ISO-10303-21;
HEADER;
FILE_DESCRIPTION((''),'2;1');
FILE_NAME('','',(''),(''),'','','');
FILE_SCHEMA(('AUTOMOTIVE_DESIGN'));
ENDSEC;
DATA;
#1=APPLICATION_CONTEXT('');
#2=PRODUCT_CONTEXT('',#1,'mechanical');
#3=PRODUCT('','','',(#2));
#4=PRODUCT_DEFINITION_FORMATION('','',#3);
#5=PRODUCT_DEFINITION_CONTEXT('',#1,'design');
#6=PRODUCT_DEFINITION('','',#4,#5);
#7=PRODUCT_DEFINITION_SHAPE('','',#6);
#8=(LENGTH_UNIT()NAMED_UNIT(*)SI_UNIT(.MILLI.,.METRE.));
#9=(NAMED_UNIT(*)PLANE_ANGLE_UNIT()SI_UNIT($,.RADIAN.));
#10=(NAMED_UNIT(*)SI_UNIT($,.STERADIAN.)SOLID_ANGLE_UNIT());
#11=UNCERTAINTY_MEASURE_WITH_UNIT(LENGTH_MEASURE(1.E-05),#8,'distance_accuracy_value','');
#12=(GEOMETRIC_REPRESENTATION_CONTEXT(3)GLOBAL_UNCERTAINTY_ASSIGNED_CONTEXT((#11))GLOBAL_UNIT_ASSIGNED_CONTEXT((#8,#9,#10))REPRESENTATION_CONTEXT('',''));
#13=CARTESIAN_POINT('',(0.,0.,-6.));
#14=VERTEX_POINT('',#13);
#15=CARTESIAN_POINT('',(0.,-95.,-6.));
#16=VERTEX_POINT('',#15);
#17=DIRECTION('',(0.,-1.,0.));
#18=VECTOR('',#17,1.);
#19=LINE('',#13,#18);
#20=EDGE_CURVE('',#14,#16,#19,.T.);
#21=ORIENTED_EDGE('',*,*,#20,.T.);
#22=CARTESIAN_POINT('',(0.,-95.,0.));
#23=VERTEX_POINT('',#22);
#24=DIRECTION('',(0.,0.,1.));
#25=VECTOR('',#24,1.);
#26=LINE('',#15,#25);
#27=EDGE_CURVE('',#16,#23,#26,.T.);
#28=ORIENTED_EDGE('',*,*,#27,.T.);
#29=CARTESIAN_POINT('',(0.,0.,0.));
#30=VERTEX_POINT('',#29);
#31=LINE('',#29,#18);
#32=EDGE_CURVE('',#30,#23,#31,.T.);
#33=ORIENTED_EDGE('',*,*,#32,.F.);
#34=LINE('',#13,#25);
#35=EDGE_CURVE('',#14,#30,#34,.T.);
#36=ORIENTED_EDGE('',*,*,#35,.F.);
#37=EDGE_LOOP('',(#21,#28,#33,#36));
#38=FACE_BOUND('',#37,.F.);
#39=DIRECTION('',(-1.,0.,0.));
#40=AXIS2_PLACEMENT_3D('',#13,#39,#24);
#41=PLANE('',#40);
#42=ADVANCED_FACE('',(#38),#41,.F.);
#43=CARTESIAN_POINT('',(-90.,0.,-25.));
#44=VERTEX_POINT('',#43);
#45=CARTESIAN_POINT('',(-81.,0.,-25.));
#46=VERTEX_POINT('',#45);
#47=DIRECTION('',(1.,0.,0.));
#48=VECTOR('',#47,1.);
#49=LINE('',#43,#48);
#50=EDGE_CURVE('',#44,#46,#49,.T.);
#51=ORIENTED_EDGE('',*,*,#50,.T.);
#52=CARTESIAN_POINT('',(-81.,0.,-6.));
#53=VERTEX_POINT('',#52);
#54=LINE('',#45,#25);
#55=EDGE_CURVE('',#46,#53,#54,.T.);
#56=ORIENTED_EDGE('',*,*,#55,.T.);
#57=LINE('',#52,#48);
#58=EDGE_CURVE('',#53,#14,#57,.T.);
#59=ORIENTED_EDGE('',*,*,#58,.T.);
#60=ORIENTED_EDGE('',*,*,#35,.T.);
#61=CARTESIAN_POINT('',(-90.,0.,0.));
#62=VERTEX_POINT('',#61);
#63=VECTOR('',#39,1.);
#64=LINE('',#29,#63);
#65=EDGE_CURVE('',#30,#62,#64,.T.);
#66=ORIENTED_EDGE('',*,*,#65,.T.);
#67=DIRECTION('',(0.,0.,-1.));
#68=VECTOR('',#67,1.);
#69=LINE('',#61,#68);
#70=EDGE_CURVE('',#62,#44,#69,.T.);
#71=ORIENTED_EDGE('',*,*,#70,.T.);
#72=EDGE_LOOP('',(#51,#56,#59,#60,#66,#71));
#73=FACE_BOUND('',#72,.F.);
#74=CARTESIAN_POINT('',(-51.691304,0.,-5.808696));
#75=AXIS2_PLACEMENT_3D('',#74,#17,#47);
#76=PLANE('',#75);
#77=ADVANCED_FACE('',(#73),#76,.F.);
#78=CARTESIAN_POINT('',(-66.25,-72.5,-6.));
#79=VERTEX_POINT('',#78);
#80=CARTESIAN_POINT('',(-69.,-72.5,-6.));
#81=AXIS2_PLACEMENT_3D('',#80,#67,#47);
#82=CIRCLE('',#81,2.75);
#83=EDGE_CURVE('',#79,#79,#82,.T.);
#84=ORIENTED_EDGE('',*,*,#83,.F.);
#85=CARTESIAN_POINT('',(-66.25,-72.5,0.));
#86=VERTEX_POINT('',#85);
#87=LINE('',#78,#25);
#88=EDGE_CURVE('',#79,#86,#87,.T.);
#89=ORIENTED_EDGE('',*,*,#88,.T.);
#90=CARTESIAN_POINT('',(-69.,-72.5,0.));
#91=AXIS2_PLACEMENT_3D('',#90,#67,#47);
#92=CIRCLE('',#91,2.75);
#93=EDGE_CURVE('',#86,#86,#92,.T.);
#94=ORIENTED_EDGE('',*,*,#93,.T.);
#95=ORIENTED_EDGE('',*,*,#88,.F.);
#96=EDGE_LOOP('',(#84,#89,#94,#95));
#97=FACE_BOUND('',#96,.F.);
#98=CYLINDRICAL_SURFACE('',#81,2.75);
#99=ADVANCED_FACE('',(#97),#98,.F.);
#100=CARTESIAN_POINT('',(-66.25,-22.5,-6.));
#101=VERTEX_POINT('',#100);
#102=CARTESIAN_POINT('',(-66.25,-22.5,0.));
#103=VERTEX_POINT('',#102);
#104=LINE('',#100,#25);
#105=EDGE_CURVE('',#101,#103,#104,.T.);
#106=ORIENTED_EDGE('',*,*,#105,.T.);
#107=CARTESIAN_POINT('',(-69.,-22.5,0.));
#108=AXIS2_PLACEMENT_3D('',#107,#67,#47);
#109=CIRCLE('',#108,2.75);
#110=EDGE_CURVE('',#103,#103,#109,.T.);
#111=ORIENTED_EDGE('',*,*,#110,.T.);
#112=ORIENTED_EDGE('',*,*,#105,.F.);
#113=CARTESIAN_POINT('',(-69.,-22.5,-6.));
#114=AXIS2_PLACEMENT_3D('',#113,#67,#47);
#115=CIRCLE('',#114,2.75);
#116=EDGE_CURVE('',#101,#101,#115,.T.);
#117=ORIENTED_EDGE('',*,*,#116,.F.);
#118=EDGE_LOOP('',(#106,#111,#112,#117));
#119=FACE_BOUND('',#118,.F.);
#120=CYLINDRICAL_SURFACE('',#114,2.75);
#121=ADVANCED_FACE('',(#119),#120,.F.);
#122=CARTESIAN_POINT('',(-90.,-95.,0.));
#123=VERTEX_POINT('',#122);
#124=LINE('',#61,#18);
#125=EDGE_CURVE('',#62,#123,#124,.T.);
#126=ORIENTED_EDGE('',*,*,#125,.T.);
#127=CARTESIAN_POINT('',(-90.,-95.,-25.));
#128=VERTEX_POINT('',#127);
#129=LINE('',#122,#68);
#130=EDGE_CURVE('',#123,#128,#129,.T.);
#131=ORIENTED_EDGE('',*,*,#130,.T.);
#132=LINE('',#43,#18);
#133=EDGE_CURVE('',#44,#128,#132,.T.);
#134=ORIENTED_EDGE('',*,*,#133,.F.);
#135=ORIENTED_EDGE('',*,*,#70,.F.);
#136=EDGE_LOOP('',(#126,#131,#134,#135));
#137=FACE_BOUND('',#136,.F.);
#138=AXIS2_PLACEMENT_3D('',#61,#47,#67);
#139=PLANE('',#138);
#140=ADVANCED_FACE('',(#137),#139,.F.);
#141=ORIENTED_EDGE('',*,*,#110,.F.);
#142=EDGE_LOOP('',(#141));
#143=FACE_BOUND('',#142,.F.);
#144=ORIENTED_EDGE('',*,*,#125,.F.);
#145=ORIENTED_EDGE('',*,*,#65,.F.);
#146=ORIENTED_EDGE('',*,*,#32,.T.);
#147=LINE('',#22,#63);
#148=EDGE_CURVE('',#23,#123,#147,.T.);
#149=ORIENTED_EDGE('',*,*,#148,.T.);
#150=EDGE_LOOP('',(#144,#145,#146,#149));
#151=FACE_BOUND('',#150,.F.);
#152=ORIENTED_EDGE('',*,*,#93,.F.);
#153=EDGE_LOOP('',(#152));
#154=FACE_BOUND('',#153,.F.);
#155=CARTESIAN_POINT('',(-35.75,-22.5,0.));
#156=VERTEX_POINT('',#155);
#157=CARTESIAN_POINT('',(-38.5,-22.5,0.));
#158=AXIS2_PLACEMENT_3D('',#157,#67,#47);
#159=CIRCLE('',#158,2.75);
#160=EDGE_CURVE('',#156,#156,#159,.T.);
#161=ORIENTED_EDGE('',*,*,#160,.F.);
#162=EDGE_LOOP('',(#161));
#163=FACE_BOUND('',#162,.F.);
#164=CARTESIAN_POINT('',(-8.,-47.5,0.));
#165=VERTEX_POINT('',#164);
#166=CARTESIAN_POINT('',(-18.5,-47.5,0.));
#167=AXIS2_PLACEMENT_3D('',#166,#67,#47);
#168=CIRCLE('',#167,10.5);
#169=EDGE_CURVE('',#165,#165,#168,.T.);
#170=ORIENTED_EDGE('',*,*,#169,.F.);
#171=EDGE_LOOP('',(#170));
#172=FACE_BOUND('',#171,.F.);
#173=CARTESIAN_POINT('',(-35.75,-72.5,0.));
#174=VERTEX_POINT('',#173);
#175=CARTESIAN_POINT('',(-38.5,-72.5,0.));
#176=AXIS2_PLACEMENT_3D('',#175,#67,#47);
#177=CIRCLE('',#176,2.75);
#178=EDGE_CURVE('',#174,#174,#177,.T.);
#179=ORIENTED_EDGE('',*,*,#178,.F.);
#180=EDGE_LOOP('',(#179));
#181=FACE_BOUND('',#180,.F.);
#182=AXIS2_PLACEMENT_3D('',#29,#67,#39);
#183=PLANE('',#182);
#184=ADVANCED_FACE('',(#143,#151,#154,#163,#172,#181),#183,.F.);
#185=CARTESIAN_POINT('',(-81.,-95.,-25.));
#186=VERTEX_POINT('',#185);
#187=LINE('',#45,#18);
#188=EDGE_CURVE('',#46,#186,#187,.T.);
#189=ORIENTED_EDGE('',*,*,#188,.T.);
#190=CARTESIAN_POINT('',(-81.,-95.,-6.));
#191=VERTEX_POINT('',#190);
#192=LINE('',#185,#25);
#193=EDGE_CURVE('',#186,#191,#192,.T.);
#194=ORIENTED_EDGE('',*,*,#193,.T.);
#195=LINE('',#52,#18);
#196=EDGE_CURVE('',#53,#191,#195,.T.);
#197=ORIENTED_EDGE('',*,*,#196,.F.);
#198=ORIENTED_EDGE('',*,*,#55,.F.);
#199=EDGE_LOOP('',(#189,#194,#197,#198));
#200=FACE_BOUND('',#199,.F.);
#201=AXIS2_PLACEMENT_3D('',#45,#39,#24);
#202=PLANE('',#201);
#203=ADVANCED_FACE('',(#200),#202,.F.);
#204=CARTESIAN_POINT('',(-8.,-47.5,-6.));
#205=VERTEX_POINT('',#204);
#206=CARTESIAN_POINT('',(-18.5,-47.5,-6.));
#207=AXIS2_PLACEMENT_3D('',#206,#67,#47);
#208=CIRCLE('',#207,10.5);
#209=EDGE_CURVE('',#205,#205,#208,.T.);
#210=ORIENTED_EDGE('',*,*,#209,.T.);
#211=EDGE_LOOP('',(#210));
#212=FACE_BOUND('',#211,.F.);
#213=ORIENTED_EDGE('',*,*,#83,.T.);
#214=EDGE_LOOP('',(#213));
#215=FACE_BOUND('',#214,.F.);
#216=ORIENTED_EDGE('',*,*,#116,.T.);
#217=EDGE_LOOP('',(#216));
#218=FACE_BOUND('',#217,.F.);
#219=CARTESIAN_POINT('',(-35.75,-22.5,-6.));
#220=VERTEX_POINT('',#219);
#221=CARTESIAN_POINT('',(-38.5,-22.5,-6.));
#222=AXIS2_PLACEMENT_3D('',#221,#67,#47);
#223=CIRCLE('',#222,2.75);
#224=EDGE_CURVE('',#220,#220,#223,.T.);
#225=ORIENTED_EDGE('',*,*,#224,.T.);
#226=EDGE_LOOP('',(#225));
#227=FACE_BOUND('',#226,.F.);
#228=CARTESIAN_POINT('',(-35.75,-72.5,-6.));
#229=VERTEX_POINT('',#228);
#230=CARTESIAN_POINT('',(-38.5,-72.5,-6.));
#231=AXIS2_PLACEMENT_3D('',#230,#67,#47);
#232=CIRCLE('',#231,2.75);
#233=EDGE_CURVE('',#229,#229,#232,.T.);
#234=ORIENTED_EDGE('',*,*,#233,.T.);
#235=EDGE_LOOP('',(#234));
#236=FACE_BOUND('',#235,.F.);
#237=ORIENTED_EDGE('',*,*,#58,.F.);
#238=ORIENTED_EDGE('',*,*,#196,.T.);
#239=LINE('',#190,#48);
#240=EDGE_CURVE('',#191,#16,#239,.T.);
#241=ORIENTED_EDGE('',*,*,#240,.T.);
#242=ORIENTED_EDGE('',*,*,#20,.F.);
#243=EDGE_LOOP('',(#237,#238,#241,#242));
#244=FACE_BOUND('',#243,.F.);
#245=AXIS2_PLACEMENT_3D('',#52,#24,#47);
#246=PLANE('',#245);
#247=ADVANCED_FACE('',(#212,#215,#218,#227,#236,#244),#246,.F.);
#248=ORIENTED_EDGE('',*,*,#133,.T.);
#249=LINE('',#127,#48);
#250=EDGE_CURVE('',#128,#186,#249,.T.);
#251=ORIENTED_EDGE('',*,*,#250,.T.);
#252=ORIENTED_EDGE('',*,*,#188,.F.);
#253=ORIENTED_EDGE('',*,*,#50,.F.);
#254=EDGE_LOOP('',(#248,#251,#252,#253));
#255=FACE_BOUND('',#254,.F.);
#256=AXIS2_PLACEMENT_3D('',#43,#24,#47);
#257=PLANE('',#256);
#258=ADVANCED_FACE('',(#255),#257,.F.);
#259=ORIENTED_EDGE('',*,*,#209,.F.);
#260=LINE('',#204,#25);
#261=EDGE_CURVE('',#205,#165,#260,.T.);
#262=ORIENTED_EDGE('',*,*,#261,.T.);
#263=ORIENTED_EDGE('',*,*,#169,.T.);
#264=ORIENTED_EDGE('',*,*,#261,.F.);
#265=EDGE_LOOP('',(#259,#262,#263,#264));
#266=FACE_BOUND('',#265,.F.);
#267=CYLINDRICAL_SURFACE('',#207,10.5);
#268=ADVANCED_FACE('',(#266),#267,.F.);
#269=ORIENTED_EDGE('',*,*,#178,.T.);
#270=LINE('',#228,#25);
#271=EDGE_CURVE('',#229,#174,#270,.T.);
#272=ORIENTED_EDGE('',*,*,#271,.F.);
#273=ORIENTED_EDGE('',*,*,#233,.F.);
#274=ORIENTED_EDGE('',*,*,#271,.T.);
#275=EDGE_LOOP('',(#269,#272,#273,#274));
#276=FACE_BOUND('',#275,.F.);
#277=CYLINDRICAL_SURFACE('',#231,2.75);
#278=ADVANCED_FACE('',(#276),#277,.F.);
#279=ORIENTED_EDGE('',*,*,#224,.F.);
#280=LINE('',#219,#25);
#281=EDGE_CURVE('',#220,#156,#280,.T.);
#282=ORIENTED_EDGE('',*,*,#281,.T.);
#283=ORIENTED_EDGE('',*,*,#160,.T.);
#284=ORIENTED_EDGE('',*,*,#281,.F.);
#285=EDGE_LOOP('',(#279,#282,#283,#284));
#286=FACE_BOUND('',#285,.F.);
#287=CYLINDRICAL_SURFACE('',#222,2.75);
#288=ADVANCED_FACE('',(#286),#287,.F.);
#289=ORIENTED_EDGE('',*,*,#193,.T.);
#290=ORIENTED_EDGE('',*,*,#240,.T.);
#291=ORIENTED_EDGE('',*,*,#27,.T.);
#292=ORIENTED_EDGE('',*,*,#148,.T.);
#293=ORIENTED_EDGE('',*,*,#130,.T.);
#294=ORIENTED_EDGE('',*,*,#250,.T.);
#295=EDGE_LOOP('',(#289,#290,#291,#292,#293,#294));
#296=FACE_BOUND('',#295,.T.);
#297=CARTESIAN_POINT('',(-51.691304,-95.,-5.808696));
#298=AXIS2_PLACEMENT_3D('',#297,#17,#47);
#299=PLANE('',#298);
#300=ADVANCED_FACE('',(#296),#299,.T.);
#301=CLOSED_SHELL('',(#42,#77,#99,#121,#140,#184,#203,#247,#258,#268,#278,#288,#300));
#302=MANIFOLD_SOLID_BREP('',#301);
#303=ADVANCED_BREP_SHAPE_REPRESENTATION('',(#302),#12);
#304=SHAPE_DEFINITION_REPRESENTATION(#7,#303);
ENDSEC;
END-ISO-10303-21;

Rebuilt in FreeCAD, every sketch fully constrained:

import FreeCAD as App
import Part
import Sketcher
from FreeCAD import Vector
Q = App.Units.Quantity

doc = App.newDocument("Part")
body = doc.addObject("PartDesign::Body", "Body")

# Sketch on XZ plane
sketch1 = body.newObject("Sketcher::SketchObject", "Sketch")
sketch1.AttachmentSupport = (doc.getObject("XZ_Plane"), [""])
sketch1.MapMode = "FlatFace"
sketch1.addGeometry([
    Part.LineSegment(Vector(0, -6, 0), Vector(0, 0, 0)),  # 0
    Part.LineSegment(Vector(0, 0, 0), Vector(-90, 0, 0)),  # 1
    Part.LineSegment(Vector(-90, 0, 0), Vector(-90, -25, 0)),  # 2
    Part.LineSegment(Vector(-90, -25, 0), Vector(-81, -25, 0)),  # 3
    Part.LineSegment(Vector(-81, -25, 0), Vector(-81, -6, 0)),  # 4
    Part.LineSegment(Vector(-81, -6, 0), Vector(0, -6, 0)),  # 5
], False)
sketch1.addConstraint([
    Sketcher.Constraint("Coincident", 0, 2, 1, 1),
    Sketcher.Constraint("Coincident", 1, 2, 2, 1),
    Sketcher.Constraint("Coincident", 2, 2, 3, 1),
    Sketcher.Constraint("Coincident", 3, 2, 4, 1),
    Sketcher.Constraint("Coincident", 4, 2, 5, 1),
    Sketcher.Constraint("Coincident", 5, 2, 0, 1),
    Sketcher.Constraint("Vertical", 0),
    Sketcher.Constraint("Horizontal", 1),
    Sketcher.Constraint("Vertical", 2),
    Sketcher.Constraint("Horizontal", 3),
    Sketcher.Constraint("Vertical", 4),
    Sketcher.Constraint("Horizontal", 5),
    Sketcher.Constraint("Coincident", 0, 2, -1, 1),
    Sketcher.Constraint("DistanceX", 1, 2, 1, 1, Q("90 mm")),
    Sketcher.Constraint("DistanceX", 3, 1, 3, 2, Q("9 mm")),
    Sketcher.Constraint("DistanceY", 0, 1, 0, 2, Q("6 mm")),
    Sketcher.Constraint("DistanceY", 2, 2, 2, 1, Q("25 mm")),
])
pad1 = body.newObject("PartDesign::Pad", "Pad")
pad1.Profile = sketch1
pad1.Length = 95

# Sketch on XY plane
sketch2 = body.newObject("Sketcher::SketchObject", "Sketch001")
sketch2.AttachmentSupport = (doc.getObject("XY_Plane"), [""])
sketch2.MapMode = "FlatFace"
sketch2.AttachmentOffset = App.Placement(Vector(0, 0, -6), App.Rotation())
sketch2.addGeometry([
    Part.Circle(Vector(-69, -72.5, 0), Vector(0, 0, 1), 2.8),  # 0
    Part.Circle(Vector(-38.5, -72.5, 0), Vector(0, 0, 1), 2.8),  # 1
    Part.Circle(Vector(-69, -22.5, 0), Vector(0, 0, 1), 2.8),  # 2
    Part.Circle(Vector(-38.5, -22.5, 0), Vector(0, 0, 1), 2.8),  # 3
    Part.Circle(Vector(-18.5, -47.5, 0), Vector(0, 0, 1), 10.5),  # 4
], False)
sketch2.addConstraint([
    Sketcher.Constraint("Equal", 0, 1),
    Sketcher.Constraint("Equal", 1, 2),
    Sketcher.Constraint("Equal", 2, 3),
    Sketcher.Constraint("Horizontal", 0, 3, 1, 3),
    Sketcher.Constraint("Horizontal", 2, 3, 3, 3),
    Sketcher.Constraint("Vertical", 0, 3, 2, 3),
    Sketcher.Constraint("Vertical", 1, 3, 3, 3),
    Sketcher.Constraint("Diameter", 4, Q("21 mm")),
    Sketcher.Constraint("Diameter", 0, Q("5.5 mm")),
    Sketcher.Constraint("DistanceX", 0, 3, -1, 1, Q("69 mm")),
    Sketcher.Constraint("DistanceY", 0, 3, 2, 3, Q("50 mm")),
    Sketcher.Constraint("DistanceX", 1, 3, 4, 3, Q("20 mm")),
    Sketcher.Constraint("DistanceY", 1, 3, 4, 3, Q("25 mm")),
    Sketcher.Constraint("DistanceY", 0, 3, -1, 1, Q("72.5 mm")),
    Sketcher.Constraint("DistanceX", 1, 3, -1, 1, Q("38.5 mm")),
])
pocket1 = body.newObject("PartDesign::Pocket", "Pocket")
pocket1.Profile = sketch2
pocket1.Length = 6
pocket1.Reversed = True

doc.recompute()
